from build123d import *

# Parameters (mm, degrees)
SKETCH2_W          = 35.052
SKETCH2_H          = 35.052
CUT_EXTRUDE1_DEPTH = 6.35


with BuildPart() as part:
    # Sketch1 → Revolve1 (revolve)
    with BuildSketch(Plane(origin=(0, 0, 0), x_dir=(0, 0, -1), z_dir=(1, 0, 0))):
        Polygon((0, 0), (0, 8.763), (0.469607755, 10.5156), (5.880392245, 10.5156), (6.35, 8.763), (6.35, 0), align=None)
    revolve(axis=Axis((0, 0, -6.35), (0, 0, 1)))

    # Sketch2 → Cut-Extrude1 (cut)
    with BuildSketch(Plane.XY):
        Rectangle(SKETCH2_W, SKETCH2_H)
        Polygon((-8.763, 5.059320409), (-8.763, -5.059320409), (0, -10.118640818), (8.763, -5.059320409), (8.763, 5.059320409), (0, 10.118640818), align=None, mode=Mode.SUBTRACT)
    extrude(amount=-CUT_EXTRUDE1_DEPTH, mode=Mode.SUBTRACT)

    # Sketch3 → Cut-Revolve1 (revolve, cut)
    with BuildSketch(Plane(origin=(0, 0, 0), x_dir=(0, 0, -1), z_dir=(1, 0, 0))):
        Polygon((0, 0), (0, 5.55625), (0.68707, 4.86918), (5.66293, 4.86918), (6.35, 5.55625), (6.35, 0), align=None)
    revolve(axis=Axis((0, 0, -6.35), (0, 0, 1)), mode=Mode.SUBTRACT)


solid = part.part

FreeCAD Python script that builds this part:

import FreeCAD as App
import Part
import Sketcher

V = App.Vector
Q = App.Units.Quantity

doc = App.newDocument("Part")
body = doc.addObject("PartDesign::Body", "Body")

# Sketch on YZ plane
sketch1 = doc.addObject("Sketcher::SketchObject", "Sketch")
body.addObject(sketch1)
sketch1.AttachmentSupport = (doc.YZ_Plane, [""])
sketch1.MapMode = "FlatFace"
sketch1.addGeometry([
    Part.LineSegment(V(8.8, 0, 0), V(0, 0, 0)),  # 0
    Part.LineSegment(V(0, 0, 0), V(0, -6.3, 0)),  # 1
    Part.LineSegment(V(0, -6.3, 0), V(8.8, -6.3, 0)),  # 2
    Part.LineSegment(V(8.8, -6.3, 0), V(10.5, -5.9, 0)),  # 3
    Part.LineSegment(V(10.5, -5.9, 0), V(10.5, -0.5, 0)),  # 4
    Part.LineSegment(V(10.5, -0.5, 0), V(8.8, 0, 0)),  # 5
], False)
sketch1.addConstraint([
    Sketcher.Constraint("Coincident", 0, 2, 1, 1),
    Sketcher.Constraint("Coincident", 1, 2, 2, 1),
    Sketcher.Constraint("Coincident", 2, 2, 3, 1),
    Sketcher.Constraint("Coincident", 3, 2, 4, 1),
    Sketcher.Constraint("Coincident", 4, 2, 5, 1),
    Sketcher.Constraint("Coincident", 5, 2, 0, 1),
    Sketcher.Constraint("Horizontal", 0),
    Sketcher.Constraint("Vertical", 1),
    Sketcher.Constraint("Horizontal", 2),
    Sketcher.Constraint("Vertical", 4),
    Sketcher.Constraint("Coincident", 0, 2, -1, 1),
    Sketcher.Constraint("Vertical", 2, 2, 5, 2),
    Sketcher.Constraint("Equal", 3, 5),
    Sketcher.Constraint("Angle", 3, Q("15 deg")),
    Sketcher.Constraint("DistanceY", 1, 2, 1, 1, Q("0.25 in")),
    Sketcher.Constraint("DistanceX", 0, 2, 0, 1, Q("0.345 in")),
    Sketcher.Constraint("DistanceX", -1, 1, 3, 2, Q("0.414 in")),
])
revolution = doc.addObject("PartDesign::Revolution", "Revolution")
body.addObject(revolution)
revolution.Profile = sketch1
revolution.ReferenceAxis = (sketch1, ["V_Axis"])
revolution.Angle = 360

# Sketch on XY plane
sketch2 = doc.addObject("Sketcher::SketchObject", "Sketch001")
body.addObject(sketch2)
sketch2.AttachmentSupport = (doc.XY_Plane, [""])
sketch2.MapMode = "FlatFace"
sketch2.addGeometry([
    Part.LineSegment(V(-18, 18, 0), V(-18, -18, 0)),  # 0
    Part.LineSegment(V(-18, -18, 0), V(18, -18, 0)),  # 1
    Part.LineSegment(V(18, -18, 0), V(18, 18, 0)),  # 2
    Part.LineSegment(V(18, 18, 0), V(-18, 18, 0)),  # 3
    Part.LineSegment(V(-9, -5, 0), V(-9, 5, 0)),  # 4
    Part.LineSegment(V(-9, 5, 0), V(0, 10, 0)),  # 5
    Part.LineSegment(V(0, 10, 0), V(9, 5, 0)),  # 6
    Part.LineSegment(V(9, 5, 0), V(9, -5, 0)),  # 7
    Part.LineSegment(V(9, -5, 0), V(0, -10, 0)),  # 8
    Part.LineSegment(V(0, -10, 0), V(-9, -5, 0)),  # 9
], False)
sketch2.addConstraint([
    Sketcher.Constraint("Coincident", 0, 2, 1, 1),
    Sketcher.Constraint("Coincident", 1, 2, 2, 1),
    Sketcher.Constraint("Coincident", 2, 2, 3, 1),
    Sketcher.Constraint("Coincident", 3, 2, 0, 1),
    Sketcher.Constraint("Coincident", 4, 2, 5, 1),
    Sketcher.Constraint("Coincident", 5, 2, 6, 1),
    Sketcher.Constraint("Coincident", 6, 2, 7, 1),
    Sketcher.Constraint("Coincident", 7, 2, 8, 1),
    Sketcher.Constraint("Coincident", 8, 2, 9, 1),
    Sketcher.Constraint("Coincident", 9, 2, 4, 1),
    Sketcher.Constraint("Vertical", 0),
    Sketcher.Constraint("Horizontal", 1),
    Sketcher.Constraint("Vertical", 2),
    Sketcher.Constraint("Horizontal", 3),
    Sketcher.Constraint("Vertical", 4),
    Sketcher.Constraint("Vertical", 7),
    Sketcher.Constraint("Symmetric", 0, 2, 2, 2, -1, 1),
    Sketcher.Constraint("Symmetric", 4, 2, 7, 2, -1, 1),
    Sketcher.Constraint("Symmetric", 5, 2, 8, 2, -1, 1),
    Sketcher.Constraint("PointOnObject", 5, 2, -2),
    Sketcher.Constraint("Parallel", 6, 9),
    Sketcher.Constraint("Horizontal", 4, 2, 6, 2),
    Sketcher.Constraint("Equal", 3, 0),
    Sketcher.Constraint("Angle", 5, Q("30 deg")),
    Sketcher.Constraint("DistanceX", 1, 1, 1, 2, Q("1.38 in")),
    Sketcher.Constraint("DistanceX", 4, 2, 6, 2, Q("0.69 in")),
    Sketcher.Constraint("DistanceY", 4, 1, 4, 2, 10.118641),
])
pocket1 = doc.addObject("PartDesign::Pocket", "Pocket")
body.addObject(pocket1)
pocket1.Profile = sketch2
pocket1.Length = Q("0.25 in")

# Sketch on YZ plane
sketch3 = doc.addObject("Sketcher::SketchObject", "Sketch002")
body.addObject(sketch3)
sketch3.AttachmentSupport = (doc.YZ_Plane, [""])
sketch3.MapMode = "FlatFace"
sketch3.addGeometry([
    Part.LineSegment(V(5.6, 0, 0), V(0, 0, 0)),  # 0
    Part.LineSegment(V(0, 0, 0), V(0, -6.3, 0)),  # 1
    Part.LineSegment(V(0, -6.3, 0), V(5.6, -6.3, 0)),  # 2
    Part.LineSegment(V(5.6, -6.3, 0), V(4.9, -5.7, 0)),  # 3
    Part.LineSegment(V(4.9, -5.7, 0), V(4.9, -0.7, 0)),  # 4
    Part.LineSegment(V(4.9, -0.7, 0), V(5.6, 0, 0)),  # 5
], False)
sketch3.addConstraint([
    Sketcher.Constraint("Coincident", 0, 2, 1, 1),
    Sketcher.Constraint("Coincident", 1, 2, 2, 1),
    Sketcher.Constraint("Coincident", 2, 2, 3, 1),
    Sketcher.Constraint("Coincident", 3, 2, 4, 1),
    Sketcher.Constraint("Coincident", 4, 2, 5, 1),
    Sketcher.Constraint("Coincident", 5, 2, 0, 1),
    Sketcher.Constraint("Horizontal", 0),
    Sketcher.Constraint("Vertical", 1),
    Sketcher.Constraint("Horizontal", 2),
    Sketcher.Constraint("Vertical", 4),
    Sketcher.Constraint("Coincident", 0, 2, -1, 1),
    Sketcher.Constraint("Perpendicular", 3, 5),
    Sketcher.Constraint("Vertical", 2, 2, 5, 2),
    Sketcher.Constraint("Equal", 3, 5),
    Sketcher.Constraint("DistanceY", 1, 2, 1, 1, Q("0.25 in")),
    Sketcher.Constraint("DistanceX", 0, 2, 0, 1, Q("0.21875 in")),
    Sketcher.Constraint("DistanceY", 4, 1, 4, 2, Q("0.1959 in")),
])
groove = doc.addObject("PartDesign::Groove", "Groove")
body.addObject(groove)
groove.Profile = sketch3
groove.ReferenceAxis = (sketch3, ["V_Axis"])
groove.Angle = 360

doc.recompute()
